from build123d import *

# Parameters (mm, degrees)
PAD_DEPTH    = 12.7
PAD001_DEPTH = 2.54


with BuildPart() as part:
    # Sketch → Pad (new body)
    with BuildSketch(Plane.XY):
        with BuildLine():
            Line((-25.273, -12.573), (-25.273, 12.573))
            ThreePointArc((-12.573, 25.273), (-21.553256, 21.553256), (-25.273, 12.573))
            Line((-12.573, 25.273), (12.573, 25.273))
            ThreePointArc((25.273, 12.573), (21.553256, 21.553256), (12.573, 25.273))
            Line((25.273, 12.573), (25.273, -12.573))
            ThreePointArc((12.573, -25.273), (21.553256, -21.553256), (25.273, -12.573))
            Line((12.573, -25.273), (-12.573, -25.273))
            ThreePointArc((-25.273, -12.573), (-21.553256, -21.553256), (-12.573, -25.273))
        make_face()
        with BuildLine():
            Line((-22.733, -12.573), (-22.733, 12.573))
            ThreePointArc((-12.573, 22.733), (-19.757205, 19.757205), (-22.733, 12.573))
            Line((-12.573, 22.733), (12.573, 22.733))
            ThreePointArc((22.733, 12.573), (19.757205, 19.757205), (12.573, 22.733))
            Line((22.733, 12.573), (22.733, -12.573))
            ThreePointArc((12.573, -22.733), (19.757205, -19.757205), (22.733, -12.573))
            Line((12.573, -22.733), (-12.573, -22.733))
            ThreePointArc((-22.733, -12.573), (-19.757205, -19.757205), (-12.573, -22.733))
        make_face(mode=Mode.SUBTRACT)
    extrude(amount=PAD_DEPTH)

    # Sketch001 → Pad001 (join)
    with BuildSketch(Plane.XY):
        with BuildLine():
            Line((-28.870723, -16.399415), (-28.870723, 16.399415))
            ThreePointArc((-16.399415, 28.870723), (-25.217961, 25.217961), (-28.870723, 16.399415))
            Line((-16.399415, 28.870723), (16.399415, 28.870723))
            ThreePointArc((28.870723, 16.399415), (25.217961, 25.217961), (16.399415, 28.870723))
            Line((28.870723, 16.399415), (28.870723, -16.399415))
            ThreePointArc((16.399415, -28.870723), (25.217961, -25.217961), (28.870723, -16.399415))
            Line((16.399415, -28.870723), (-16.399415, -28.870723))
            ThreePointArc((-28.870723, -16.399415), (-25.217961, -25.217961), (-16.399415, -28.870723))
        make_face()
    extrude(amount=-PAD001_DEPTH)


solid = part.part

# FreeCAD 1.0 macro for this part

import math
import FreeCAD as App
import Part
import Sketcher
Q = App.Units.Quantity

doc = App.newDocument("Part")
body = doc.addObject("PartDesign::Body", "Body")

# Sketch on XY plane
sketch1 = doc.addObject("Sketcher::SketchObject", "Sketch")
body.addObject(sketch1)
sketch1.AttachmentSupport = (doc.XY_Plane, [""])
sketch1.MapMode = "FlatFace"
sketch1.addGeometry([
    Part.LineSegment(App.Vector(-25, 13, 0), App.Vector(-25, -13, 0)),  # 0
    Part.ArcOfCircle(Part.Circle(App.Vector(-13, -13, 0), App.Vector(0, 0, 1), 13), math.radians(-180), math.radians(-90)),  # 1
    Part.LineSegment(App.Vector(-13, -25, 0), App.Vector(13, -25, 0)),  # 2
    Part.ArcOfCircle(Part.Circle(App.Vector(13, -13, 0), App.Vector(0, 0, 1), 13), math.radians(-90), math.radians(0)),  # 3
    Part.LineSegment(App.Vector(25, -13, 0), App.Vector(25, 13, 0)),  # 4
    Part.ArcOfCircle(Part.Circle(App.Vector(13, 13, 0), App.Vector(0, 0, 1), 13), math.radians(0), math.radians(90)),  # 5
    Part.LineSegment(App.Vector(13, 25, 0), App.Vector(-13, 25, 0)),  # 6
    Part.ArcOfCircle(Part.Circle(App.Vector(-13, 13, 0), App.Vector(0, 0, 1), 13), math.radians(90), math.radians(180)),  # 7
    Part.LineSegment(App.Vector(-23, -13, 0), App.Vector(-23, 13, 0)),  # 8
    Part.ArcOfCircle(Part.Circle(App.Vector(-13, 13, 0), App.Vector(0, 0, 1), 10), math.radians(90), math.radians(180)),  # 9
    Part.LineSegment(App.Vector(-13, 23, 0), App.Vector(13, 23, 0)),  # 10
    Part.ArcOfCircle(Part.Circle(App.Vector(13, 13, 0), App.Vector(0, 0, 1), 10), math.radians(0), math.radians(90)),  # 11
    Part.LineSegment(App.Vector(23, 13, 0), App.Vector(23, -13, 0)),  # 12
    Part.ArcOfCircle(Part.Circle(App.Vector(13, -13, 0), App.Vector(0, 0, 1), 10), math.radians(-90), math.radians(0)),  # 13
    Part.LineSegment(App.Vector(13, -23, 0), App.Vector(-13, -23, 0)),  # 14
    Part.ArcOfCircle(Part.Circle(App.Vector(-13, -13, 0), App.Vector(0, 0, 1), 10), math.radians(180), math.radians(270)),  # 15
], False)
sketch1.addConstraint([
    Sketcher.Constraint("Tangent", 0, 2, 1, 1),
    Sketcher.Constraint("Tangent", 1, 2, 2, 1),
    Sketcher.Constraint("Tangent", 2, 2, 3, 1),
    Sketcher.Constraint("Tangent", 3, 2, 4, 1),
    Sketcher.Constraint("Tangent", 4, 2, 5, 1),
    Sketcher.Constraint("Tangent", 5, 2, 6, 1),
    Sketcher.Constraint("Tangent", 6, 2, 7, 1),
    Sketcher.Constraint("Tangent", 7, 2, 0, 1),
    Sketcher.Constraint("Tangent", 8, 2, 9, 2),
    Sketcher.Constraint("Tangent", 9, 1, 10, 1),
    Sketcher.Constraint("Tangent", 10, 2, 11, 2),
    Sketcher.Constraint("Tangent", 11, 1, 12, 1),
    Sketcher.Constraint("Tangent", 12, 2, 13, 2),
    Sketcher.Constraint("Tangent", 13, 1, 14, 1),
    Sketcher.Constraint("Tangent", 14, 2, 15, 2),
    Sketcher.Constraint("Tangent", 15, 1, 8, 1),
    Sketcher.Constraint("Vertical", 0),
    Sketcher.Constraint("Horizontal", 2),
    Sketcher.Constraint("Vertical", 4),
    Sketcher.Constraint("Horizontal", 6),
    Sketcher.Constraint("Vertical", 8),
    Sketcher.Constraint("Horizontal", 10),
    Sketcher.Constraint("Vertical", 12),
    Sketcher.Constraint("Horizontal", 14),
    Sketcher.Constraint("Coincident", 9, 3, 7, 3),
    Sketcher.Constraint("Coincident", 11, 3, 5, 3),
    Sketcher.Constraint("Coincident", 13, 3, 3, 3),
    Sketcher.Constraint("Equal", 1, 3),
    Sketcher.Constraint("Equal", 3, 5),
    Sketcher.Constraint("Equal", 5, 7),
    Sketcher.Constraint("Equal", 13, 15),
    Sketcher.Constraint("Symmetric", 1, 3, 5, 3, -1, 1),
    Sketcher.Constraint("Equal", 14, 0),
    Sketcher.Constraint("Radius", 1, Q("0.5 in")),
    Sketcher.Constraint("Radius", 9, Q("0.4 in")),
    Sketcher.Constraint("DistanceX", 2, 1, 2, 2, Q("0.99 in")),
])
pad1 = doc.addObject("PartDesign::Pad", "Pad")
body.addObject(pad1)
pad1.Profile = sketch1
pad1.Length = Q("0.5 in")

# Sketch on XY plane
sketch2 = doc.addObject("Sketcher::SketchObject", "Sketch001")
body.addObject(sketch2)
sketch2.AttachmentSupport = (doc.XY_Plane, [""])
sketch2.MapMode = "FlatFace"
sketch2.addGeometry([
    Part.LineSegment(App.Vector(-29, 16, 0), App.Vector(-29, -16, 0)),  # 0
    Part.ArcOfCircle(Part.Circle(App.Vector(-16, -16, 0), App.Vector(0, 0, 1), 12), math.radians(-180), math.radians(-90)),  # 1
    Part.LineSegment(App.Vector(-16, -29, 0), App.Vector(16, -29, 0)),  # 2
    Part.ArcOfCircle(Part.Circle(App.Vector(16, -16, 0), App.Vector(0, 0, 1), 12), math.radians(-90), math.radians(0)),  # 3
    Part.LineSegment(App.Vector(29, -16, 0), App.Vector(29, 16, 0)),  # 4
    Part.ArcOfCircle(Part.Circle(App.Vector(16, 16, 0), App.Vector(0, 0, 1), 12), math.radians(0), math.radians(90)),  # 5
    Part.LineSegment(App.Vector(16, 29, 0), App.Vector(-16, 29, 0)),  # 6
    Part.ArcOfCircle(Part.Circle(App.Vector(-16, 16, 0), App.Vector(0, 0, 1), 12), math.radians(90), math.radians(180)),  # 7
], False)
sketch2.addConstraint([
    Sketcher.Constraint("Tangent", 0, 2, 1, 1),
    Sketcher.Constraint("Tangent", 1, 2, 2, 1),
    Sketcher.Constraint("Tangent", 2, 2, 3, 1),
    Sketcher.Constraint("Tangent", 3, 2, 4, 1),
    Sketcher.Constraint("Tangent", 4, 2, 5, 1),
    Sketcher.Constraint("Tangent", 5, 2, 6, 1),
    Sketcher.Constraint("Tangent", 6, 2, 7, 1),
    Sketcher.Constraint("Tangent", 7, 2, 0, 1),
    Sketcher.Constraint("Vertical", 0),
    Sketcher.Constraint("Horizontal", 2),
    Sketcher.Constraint("Vertical", 4),
    Sketcher.Constraint("Horizontal", 6),
    Sketcher.Constraint("Equal", 1, 3),
    Sketcher.Constraint("Equal", 3, 5),
    Sketcher.Constraint("Equal", 5, 7),
    Sketcher.Constraint("Symmetric", 1, 3, 5, 3, -1, 1),
    Sketcher.Constraint("Equal", 6, 0),
    Sketcher.Constraint("Radius", 1, 12.47131),
    Sketcher.Constraint("DistanceX", 2, 1, 2, 2, 32.79883),
])
pad2 = doc.addObject("PartDesign::Pad", "Pad001")
body.addObject(pad2)
pad2.Profile = sketch2
pad2.Length = Q("0.1 in")
pad2.Reversed = True

doc.recompute()
